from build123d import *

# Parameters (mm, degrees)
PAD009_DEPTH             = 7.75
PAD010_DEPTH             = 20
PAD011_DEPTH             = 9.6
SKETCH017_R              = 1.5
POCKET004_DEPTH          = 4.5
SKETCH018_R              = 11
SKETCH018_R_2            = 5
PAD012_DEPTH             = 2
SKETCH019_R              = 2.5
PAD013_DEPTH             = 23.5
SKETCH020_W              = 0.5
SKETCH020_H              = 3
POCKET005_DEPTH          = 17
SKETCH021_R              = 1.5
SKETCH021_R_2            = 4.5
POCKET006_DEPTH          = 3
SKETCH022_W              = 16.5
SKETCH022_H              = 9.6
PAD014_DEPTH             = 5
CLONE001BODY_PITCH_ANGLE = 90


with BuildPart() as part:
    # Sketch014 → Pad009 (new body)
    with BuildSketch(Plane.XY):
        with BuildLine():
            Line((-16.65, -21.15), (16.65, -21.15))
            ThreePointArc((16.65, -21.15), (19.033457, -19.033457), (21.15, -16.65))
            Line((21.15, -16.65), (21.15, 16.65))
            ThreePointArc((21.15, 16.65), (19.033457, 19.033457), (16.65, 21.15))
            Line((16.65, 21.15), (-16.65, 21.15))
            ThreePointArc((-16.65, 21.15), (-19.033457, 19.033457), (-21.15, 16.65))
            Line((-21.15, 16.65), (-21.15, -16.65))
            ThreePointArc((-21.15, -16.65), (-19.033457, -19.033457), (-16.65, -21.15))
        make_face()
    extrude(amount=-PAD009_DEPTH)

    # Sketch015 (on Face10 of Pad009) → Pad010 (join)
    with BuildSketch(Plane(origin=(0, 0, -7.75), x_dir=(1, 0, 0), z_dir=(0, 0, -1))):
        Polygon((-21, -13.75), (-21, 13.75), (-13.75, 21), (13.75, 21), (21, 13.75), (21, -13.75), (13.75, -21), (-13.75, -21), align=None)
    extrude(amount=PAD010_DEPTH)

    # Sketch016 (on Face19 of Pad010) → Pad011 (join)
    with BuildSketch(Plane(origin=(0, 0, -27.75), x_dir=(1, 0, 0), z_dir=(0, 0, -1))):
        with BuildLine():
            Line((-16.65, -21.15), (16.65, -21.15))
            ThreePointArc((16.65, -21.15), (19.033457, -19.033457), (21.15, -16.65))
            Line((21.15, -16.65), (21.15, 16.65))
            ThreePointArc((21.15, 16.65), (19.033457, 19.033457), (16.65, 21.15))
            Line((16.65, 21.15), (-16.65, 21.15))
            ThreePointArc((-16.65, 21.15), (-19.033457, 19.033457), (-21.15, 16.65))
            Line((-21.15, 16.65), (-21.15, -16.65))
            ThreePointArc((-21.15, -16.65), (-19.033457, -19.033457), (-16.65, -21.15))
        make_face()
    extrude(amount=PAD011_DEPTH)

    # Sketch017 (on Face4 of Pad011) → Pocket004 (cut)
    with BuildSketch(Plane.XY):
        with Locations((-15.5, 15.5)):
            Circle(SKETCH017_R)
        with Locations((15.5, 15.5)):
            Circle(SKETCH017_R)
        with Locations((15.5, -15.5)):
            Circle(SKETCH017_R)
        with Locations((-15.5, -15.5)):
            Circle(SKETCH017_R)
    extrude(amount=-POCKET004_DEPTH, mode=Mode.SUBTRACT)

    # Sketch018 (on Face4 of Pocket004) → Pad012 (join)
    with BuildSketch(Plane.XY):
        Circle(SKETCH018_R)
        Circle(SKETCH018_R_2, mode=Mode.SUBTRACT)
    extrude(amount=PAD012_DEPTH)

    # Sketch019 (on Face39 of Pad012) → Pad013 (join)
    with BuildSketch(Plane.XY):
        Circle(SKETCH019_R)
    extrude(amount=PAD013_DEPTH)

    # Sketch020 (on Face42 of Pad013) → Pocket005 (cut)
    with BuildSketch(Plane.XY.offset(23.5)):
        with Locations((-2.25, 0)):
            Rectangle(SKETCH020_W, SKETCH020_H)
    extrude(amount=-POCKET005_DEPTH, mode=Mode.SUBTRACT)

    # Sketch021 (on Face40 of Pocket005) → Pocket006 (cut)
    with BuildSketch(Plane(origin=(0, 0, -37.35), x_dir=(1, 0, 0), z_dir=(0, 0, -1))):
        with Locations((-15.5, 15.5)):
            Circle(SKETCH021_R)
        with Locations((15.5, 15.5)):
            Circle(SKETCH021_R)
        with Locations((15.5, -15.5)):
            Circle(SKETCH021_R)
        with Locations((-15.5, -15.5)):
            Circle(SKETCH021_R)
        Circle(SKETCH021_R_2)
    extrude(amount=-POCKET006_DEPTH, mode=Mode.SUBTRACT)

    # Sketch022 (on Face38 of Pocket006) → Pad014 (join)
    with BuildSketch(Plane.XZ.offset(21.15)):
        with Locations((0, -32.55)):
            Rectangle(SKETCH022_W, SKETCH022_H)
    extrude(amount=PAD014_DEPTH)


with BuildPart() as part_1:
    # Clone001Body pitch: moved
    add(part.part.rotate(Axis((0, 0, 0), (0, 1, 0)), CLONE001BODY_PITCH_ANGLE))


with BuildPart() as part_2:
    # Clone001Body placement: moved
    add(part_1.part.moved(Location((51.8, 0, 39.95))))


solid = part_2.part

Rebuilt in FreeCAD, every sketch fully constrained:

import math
import FreeCAD as App
import Part
import Sketcher
from FreeCAD import Vector
Q = App.Units.Quantity


def add_polygon(sketch, points):
    """Adds a closed chain of lines whose ends are joined by coincident constraints."""
    first, n = sketch.GeometryCount, len(points)
    for a, b in zip(points, points[1:] + points[:1]):
        sketch.addGeometry(Part.LineSegment(App.Vector(*a, 0), App.Vector(*b, 0)), False)
    for i in range(n):
        sketch.addConstraint(Sketcher.Constraint("Coincident", first + i, 2, first + (i + 1) % n, 1))

doc = App.newDocument("Part")
body = doc.addObject("PartDesign::Body", "Body")

sketch1 = body.newObject("Sketcher::SketchObject", "Sketch")
sketch1.AttachmentSupport = (doc.getObject("XY_Plane"), [""])
sketch1.MapMode = "FlatFace"
sketch1.addGeometry([
    Part.LineSegment(Vector(-16.65, -21.15, 0), Vector(16.65, -21.15, 0)),
    Part.ArcOfCircle(Part.Circle(Vector(-0.000055, 0.000055, 0), Vector(0, 0, 1), 26.917451), math.radians(-51.788955), math.radians(-38.211045)),
    Part.LineSegment(Vector(21.15, -16.65, 0), Vector(21.15, 16.65, 0)),
    Part.ArcOfCircle(Part.Circle(Vector(-0.000055, -0.000055, 0), Vector(0, 0, 1), 26.917451), math.radians(38.211045), math.radians(51.788955)),
    Part.LineSegment(Vector(16.65, 21.15, 0), Vector(-16.65, 21.15, 0)),
    Part.ArcOfCircle(Part.Circle(Vector(0.000055, -0.000055, 0), Vector(0, 0, 1), 26.917451), math.radians(128.211045), math.radians(141.788955)),
    Part.LineSegment(Vector(-21.15, 16.65, 0), Vector(-21.15, -16.65, 0)),
    Part.ArcOfCircle(Part.Circle(Vector(0.000055, 0.000055, 0), Vector(0, 0, 1), 26.917451), math.radians(-141.788955), math.radians(-128.211045)),
], False)
sketch1.addConstraint([
    Sketcher.Constraint("Coincident", 0, 2, 1, 1),
    Sketcher.Constraint("Coincident", 1, 2, 2, 1),
    Sketcher.Constraint("Coincident", 2, 2, 3, 1),
    Sketcher.Constraint("Coincident", 3, 2, 4, 1),
    Sketcher.Constraint("Coincident", 4, 2, 5, 1),
    Sketcher.Constraint("Coincident", 5, 2, 6, 1),
    Sketcher.Constraint("Coincident", 6, 2, 7, 1),
    Sketcher.Constraint("Coincident", 7, 2, 0, 1),
    Sketcher.Constraint("Horizontal", 0),
    Sketcher.Constraint("Vertical", 2),
    Sketcher.Constraint("Horizontal", 4),
    Sketcher.Constraint("Vertical", 6),
    Sketcher.Constraint("Equal", 1, 3),
    Sketcher.Constraint("Equal", 3, 5),
    Sketcher.Constraint("Equal", 5, 7),
    Sketcher.Constraint("Symmetric", 1, 3, 5, 3, -1, 1),
    Sketcher.Constraint("Symmetric", 3, 3, 7, 3, -1, 1),
    Sketcher.Constraint("Symmetric", 3, 3, 5, 3, -2),
    Sketcher.Constraint("Horizontal", 2, 2, 5, 2),
    Sketcher.Constraint("Vertical", 0, 2, 3, 2),
    Sketcher.Constraint("Equal", 4, 2),
    Sketcher.Constraint("DistanceX", 0, 1, 0, 2, Q("33.3 mm")),
    Sketcher.Constraint("DistanceX", 0, 2, 1, 2, Q("4.5 mm")),
    Sketcher.Constraint("DistanceY", 0, 2, 1, 2, Q("4.5 mm")),
    Sketcher.Constraint("Radius", 1, Q("26.917451 mm")),
])
pad1 = body.newObject("PartDesign::Pad", "Pad")
pad1.Profile = sketch1
pad1.Length = 7.75
pad1.Reversed = True

sketch2 = body.newObject("Sketcher::SketchObject", "Sketch001")
sketch2.AttachmentSupport = (doc.getObject("XY_Plane"), [""])
sketch2.MapMode = "FlatFace"
sketch2.AttachmentOffset = App.Placement(Vector(0, 0, -7.75), App.Rotation())
add_polygon(sketch2, [(-21, -14), (-21, 14), (-14, 21), (14, 21), (21, 14), (21, -14), (14, -21), (-14, -21)])
sketch2.addConstraint([
    Sketcher.Constraint("Vertical", 0),
    Sketcher.Constraint("Horizontal", 2),
    Sketcher.Constraint("Vertical", 4),
    Sketcher.Constraint("Horizontal", 6),
    Sketcher.Constraint("Symmetric", 0, 2, 4, 2, -1, 1),
    Sketcher.Constraint("Symmetric", 1, 2, 5, 2, -1, 1),
    Sketcher.Constraint("Perpendicular", 1, 3),
    Sketcher.Constraint("Perpendicular", 5, 7),
    Sketcher.Constraint("Horizontal", 0, 2, 3, 2),
    Sketcher.Constraint("Horizontal", 4, 2, 7, 2),
    Sketcher.Constraint("Vertical", 2, 2, 5, 2),
    Sketcher.Constraint("Equal", 6, 0),
    Sketcher.Constraint("DistanceX", 2, 1, 2, 2, Q("27.5 mm")),
    Sketcher.Constraint("DistanceX", 0, 2, -1, 1, Q("21 mm")),
])
pad2 = body.newObject("PartDesign::Pad", "Pad001")
pad2.Profile = sketch2
pad2.Length = 20
pad2.Reversed = True

sketch3 = body.newObject("Sketcher::SketchObject", "Sketch002")
sketch3.AttachmentSupport = (doc.getObject("XY_Plane"), [""])
sketch3.MapMode = "FlatFace"
sketch3.AttachmentOffset = App.Placement(Vector(0, 0, -27.75), App.Rotation())
sketch3.addGeometry([
    Part.LineSegment(Vector(-16.65, 21.15, 0), Vector(16.65, 21.15, 0)),
    Part.ArcOfCircle(Part.Circle(Vector(-0.000055, -0.000055, 0), Vector(0, 0, 1), 26.917451), math.radians(38.211045), math.radians(51.788955)),
    Part.LineSegment(Vector(21.15, 16.65, 0), Vector(21.15, -16.65, 0)),
    Part.ArcOfCircle(Part.Circle(Vector(-0.000055, 0.000055, 0), Vector(0, 0, 1), 26.917451), math.radians(-51.788955), math.radians(-38.211045)),
    Part.LineSegment(Vector(16.65, -21.15, 0), Vector(-16.65, -21.15, 0)),
    Part.ArcOfCircle(Part.Circle(Vector(0.000055, 0.000055, 0), Vector(0, 0, 1), 26.917451), math.radians(-141.788955), math.radians(-128.211045)),
    Part.LineSegment(Vector(-21.15, -16.65, 0), Vector(-21.15, 16.65, 0)),
    Part.ArcOfCircle(Part.Circle(Vector(0.000055, -0.000055, 0), Vector(0, 0, 1), 26.917451), math.radians(128.211045), math.radians(141.788955)),
], False)
sketch3.addConstraint([
    Sketcher.Constraint("Coincident", 0, 2, 1, 2),
    Sketcher.Constraint("Coincident", 1, 1, 2, 1),
    Sketcher.Constraint("Coincident", 2, 2, 3, 2),
    Sketcher.Constraint("Coincident", 3, 1, 4, 1),
    Sketcher.Constraint("Coincident", 4, 2, 5, 2),
    Sketcher.Constraint("Coincident", 5, 1, 6, 1),
    Sketcher.Constraint("Coincident", 6, 2, 7, 2),
    Sketcher.Constraint("Coincident", 7, 1, 0, 1),
    Sketcher.Constraint("Horizontal", 0),
    Sketcher.Constraint("Vertical", 2),
    Sketcher.Constraint("Horizontal", 4),
    Sketcher.Constraint("Vertical", 6),
    Sketcher.Constraint("Equal", 1, 3),
    Sketcher.Constraint("Equal", 3, 5),
    Sketcher.Constraint("Equal", 5, 7),
    Sketcher.Constraint("Symmetric", 1, 3, 5, 3, -1, 1),
    Sketcher.Constraint("Symmetric", 3, 3, 7, 3, -1, 1),
    Sketcher.Constraint("Symmetric", 3, 3, 5, 3, -2),
    Sketcher.Constraint("Horizontal", 2, 2, 5, 1),
    Sketcher.Constraint("Vertical", 0, 2, 3, 1),
    Sketcher.Constraint("Equal", 4, 2),
    Sketcher.Constraint("DistanceX", 0, 1, 0, 2, Q("33.3 mm")),
    Sketcher.Constraint("DistanceX", 0, 2, 1, 1, Q("4.5 mm")),
    Sketcher.Constraint("DistanceY", 1, 1, 0, 2, Q("4.5 mm")),
    Sketcher.Constraint("Radius", 1, Q("26.917451 mm")),
])
pad3 = body.newObject("PartDesign::Pad", "Pad002")
pad3.Profile = sketch3
pad3.Length = 9.6
pad3.Reversed = True

sketch4 = body.newObject("Sketcher::SketchObject", "Sketch003")
sketch4.AttachmentSupport = (doc.getObject("XY_Plane"), [""])
sketch4.MapMode = "FlatFace"
sketch4.addGeometry([
    Part.Circle(Vector(-15.5, 15.5, 0), Vector(0, 0, 1), 1.5),
    Part.Circle(Vector(15.5, 15.5, 0), Vector(0, 0, 1), 1.5),
    Part.Circle(Vector(15.5, -15.5, 0), Vector(0, 0, 1), 1.5),
    Part.Circle(Vector(-15.5, -15.5, 0), Vector(0, 0, 1), 1.5),
], False)
sketch4.addConstraint([
    Sketcher.Constraint("Equal", 0, 1),
    Sketcher.Constraint("Equal", 1, 2),
    Sketcher.Constraint("Equal", 2, 3),
    Sketcher.Constraint("Symmetric", 0, 3, 2, 3, -1, 1),
    Sketcher.Constraint("Symmetric", 1, 3, 3, 3, -1, 1),
    Sketcher.Constraint("Symmetric", 0, 3, 1, 3, -2),
    Sketcher.Constraint("Diameter", 0, Q("3 mm")),
    Sketcher.Constraint("DistanceX", 0, 3, 1, 3, Q("31 mm")),
    Sketcher.Constraint("DistanceY", 2, 3, 1, 3, Q("31 mm")),
])
pocket1 = body.newObject("PartDesign::Pocket", "Pocket")
pocket1.Profile = sketch4
pocket1.Length = 4.5

sketch5 = body.newObject("Sketcher::SketchObject", "Sketch004")
sketch5.AttachmentSupport = (doc.getObject("XY_Plane"), [""])
sketch5.MapMode = "FlatFace"
sketch5.addGeometry([
    Part.Circle(Vector(0, 0, 0), Vector(0, 0, 1), 11),
    Part.Circle(Vector(0, 0, 0), Vector(0, 0, 1), 5),
], False)
sketch5.addConstraint([
    Sketcher.Constraint("Coincident", 0, 3, -1, 1),
    Sketcher.Constraint("Coincident", 1, 3, -1, 1),
    Sketcher.Constraint("Diameter", 0, Q("22 mm")),
    Sketcher.Constraint("Diameter", 1, Q("10 mm")),
])
pad4 = body.newObject("PartDesign::Pad", "Pad003")
pad4.Profile = sketch5
pad4.Length = 2

sketch6 = body.newObject("Sketcher::SketchObject", "Sketch005")
sketch6.AttachmentSupport = (doc.getObject("XY_Plane"), [""])
sketch6.MapMode = "FlatFace"
sketch6.addGeometry(Part.Circle(Vector(0, 0, 0), Vector(0, 0, 1), 2.5), False)
sketch6.addConstraint([
    Sketcher.Constraint("Coincident", 0, 3, -1, 1),
    Sketcher.Constraint("Diameter", 0, Q("5 mm")),
])
pad5 = body.newObject("PartDesign::Pad", "Pad004")
pad5.Profile = sketch6
pad5.Length = 23.5

sketch7 = body.newObject("Sketcher::SketchObject", "Sketch006")
sketch7.AttachmentSupport = (doc.getObject("XY_Plane"), [""])
sketch7.MapMode = "FlatFace"
sketch7.AttachmentOffset = App.Placement(Vector(0, 0, 23.5), App.Rotation())
add_polygon(sketch7, [(-2.5, 1.5), (-2.5, -1.5), (-2, -1.5), (-2, 1.5)])
sketch7.addConstraint([
    Sketcher.Constraint("Vertical", 0),
    Sketcher.Constraint("Horizontal", 1),
    Sketcher.Constraint("Vertical", 2),
    Sketcher.Constraint("Horizontal", 3),
    Sketcher.Constraint("DistanceY", 0, 2, 0, 1, Q("3 mm")),
    Sketcher.Constraint("DistanceX", 1, 1, 1, 2, Q("0.5 mm")),
    Sketcher.Constraint("DistanceX", 1, 2, -1, 1, Q("2 mm")),
    Sketcher.Constraint("DistanceY", 0, 2, -1, 1, Q("1.5 mm")),
])
pocket2 = body.newObject("PartDesign::Pocket", "Pocket001")
pocket2.Profile = sketch7
pocket2.Length = 17

sketch8 = body.newObject("Sketcher::SketchObject", "Sketch007")
sketch8.AttachmentSupport = (doc.getObject("XY_Plane"), [""])
sketch8.MapMode = "FlatFace"
sketch8.AttachmentOffset = App.Placement(Vector(0, 0, -37.35), App.Rotation())
sketch8.addGeometry([
    Part.Circle(Vector(-15.5, -15.5, 0), Vector(0, 0, 1), 1.5),
    Part.Circle(Vector(15.5, -15.5, 0), Vector(0, 0, 1), 1.5),
    Part.Circle(Vector(15.5, 15.5, 0), Vector(0, 0, 1), 1.5),
    Part.Circle(Vector(-15.5, 15.5, 0), Vector(0, 0, 1), 1.5),
    Part.Circle(Vector(0, 0, 0), Vector(0, 0, 1), 4.5),
], False)
sketch8.addConstraint([
    Sketcher.Constraint("Coincident", 4, 3, -1, 1),
    Sketcher.Constraint("Equal", 0, 1),
    Sketcher.Constraint("Equal", 1, 2),
    Sketcher.Constraint("Equal", 2, 3),
    Sketcher.Constraint("Symmetric", 0, 3, 2, 3, -1, 1),
    Sketcher.Constraint("Symmetric", 1, 3, 3, 3, -1, 1),
    Sketcher.Constraint("Symmetric", 0, 3, 1, 3, -2),
    Sketcher.Constraint("Diameter", 0, Q("3 mm")),
    Sketcher.Constraint("Diameter", 4, Q("9 mm")),
    Sketcher.Constraint("DistanceX", 0, 3, 1, 3, Q("31 mm")),
    Sketcher.Constraint("DistanceY", 1, 3, 2, 3, Q("31 mm")),
])
pocket3 = body.newObject("PartDesign::Pocket", "Pocket002")
pocket3.Profile = sketch8
pocket3.Length = 3
pocket3.Reversed = True

sketch9 = body.newObject("Sketcher::SketchObject", "Sketch008")
sketch9.AttachmentSupport = (doc.getObject("XZ_Plane"), [""])
sketch9.MapMode = "FlatFace"
sketch9.AttachmentOffset = App.Placement(Vector(0, 0, 21.15), App.Rotation())
add_polygon(sketch9, [(-8, -28), (-8, -37), (8, -37), (8, -28)])
sketch9.addConstraint([
    Sketcher.Constraint("Vertical", 0),
    Sketcher.Constraint("Horizontal", 1),
    Sketcher.Constraint("Vertical", 2),
    Sketcher.Constraint("Horizontal", 3),
    Sketcher.Constraint("DistanceX", 1, 1, 1, 2, Q("16.5 mm")),
    Sketcher.Constraint("DistanceY", 0, 2, 0, 1, Q("9.6 mm")),
    Sketcher.Constraint("DistanceX", 0, 2, -1, 1, Q("8.25 mm")),
    Sketcher.Constraint("DistanceY", 0, 2, -1, 1, Q("37.35 mm")),
])
pad6 = body.newObject("PartDesign::Pad", "Pad005")
pad6.Profile = sketch9
pad6.Length = 5
body2 = doc.addObject("PartDesign::Body", "Body001")
doc.recompute()

body.Placement = App.Placement(Vector(0, 0, 0), App.Rotation(Vector(0, 1, 0), 90))
boolean = body2.newObject("PartDesign::Boolean", "Boolean")
boolean.Type = "Fuse"
boolean.addObjects([body])
body3 = doc.addObject("PartDesign::Body", "Body002")
doc.recompute()

body2.Placement = App.Placement(Vector(51.8, 0, 39.95), App.Rotation(Vector(0, 0, 1), 0))
boolean2 = body3.newObject("PartDesign::Boolean", "Boolean001")
boolean2.Type = "Fuse"
boolean2.addObjects([body2])

doc.recompute()
